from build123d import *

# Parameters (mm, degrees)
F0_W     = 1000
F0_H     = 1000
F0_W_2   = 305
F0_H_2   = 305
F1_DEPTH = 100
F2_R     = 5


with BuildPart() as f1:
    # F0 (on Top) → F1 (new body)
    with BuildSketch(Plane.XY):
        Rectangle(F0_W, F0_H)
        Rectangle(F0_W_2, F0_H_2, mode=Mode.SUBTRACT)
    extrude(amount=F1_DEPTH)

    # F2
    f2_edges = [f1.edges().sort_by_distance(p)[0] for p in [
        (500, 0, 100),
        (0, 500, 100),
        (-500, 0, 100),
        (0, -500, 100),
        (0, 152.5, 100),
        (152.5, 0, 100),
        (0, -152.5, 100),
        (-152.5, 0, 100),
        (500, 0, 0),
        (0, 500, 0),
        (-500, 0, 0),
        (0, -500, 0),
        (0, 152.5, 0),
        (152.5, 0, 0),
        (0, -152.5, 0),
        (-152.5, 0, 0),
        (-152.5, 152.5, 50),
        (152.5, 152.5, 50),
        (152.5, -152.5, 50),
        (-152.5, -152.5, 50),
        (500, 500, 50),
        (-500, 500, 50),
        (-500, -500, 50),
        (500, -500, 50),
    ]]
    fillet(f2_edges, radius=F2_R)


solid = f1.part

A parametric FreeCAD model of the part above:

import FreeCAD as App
import Part
import Sketcher

V = App.Vector
Q = App.Units.Quantity


def add_polygon(sketch, points):
    """Adds a closed chain of lines whose ends are joined by coincident constraints."""
    first, n = sketch.GeometryCount, len(points)
    for a, b in zip(points, points[1:] + points[:1]):
        sketch.addGeometry(Part.LineSegment(App.Vector(*a, 0), App.Vector(*b, 0)), False)
    for i in range(n):
        sketch.addConstraint(Sketcher.Constraint("Coincident", first + i, 2, first + (i + 1) % n, 1))

doc = App.newDocument("Part")
body = doc.addObject("PartDesign::Body", "Body")

# Sketch on XY plane
sketch1 = body.newObject("Sketcher::SketchObject", "Sketch")
sketch1.AttachmentSupport = (doc.getObject("XY_Plane"), [""])
sketch1.MapMode = "FlatFace"
add_polygon(sketch1, [(-500, 500), (-500, -500), (500, -500), (500, 500)])  # lines 0-3
add_polygon(sketch1, [(152, -152), (-152, -152), (-152, 152), (152, 152)])  # lines 4-7
sketch1.addConstraint([
    Sketcher.Constraint("Vertical", 0),
    Sketcher.Constraint("Horizontal", 1),
    Sketcher.Constraint("Vertical", 2),
    Sketcher.Constraint("Horizontal", 3),
    Sketcher.Constraint("Horizontal", 4),
    Sketcher.Constraint("Vertical", 5),
    Sketcher.Constraint("Horizontal", 6),
    Sketcher.Constraint("Vertical", 7),
    Sketcher.Constraint("Symmetric", 0, 2, 2, 2, -1, 1),
    Sketcher.Constraint("Symmetric", 4, 2, 6, 2, -1, 1),
    Sketcher.Constraint("Equal", 3, 0),
    Sketcher.Constraint("Equal", 6, 5),
    Sketcher.Constraint("DistanceX", 1, 1, 1, 2, Q("1000 mm")),
    Sketcher.Constraint("DistanceX", 4, 2, 4, 1, Q("305 mm")),
])
pad1 = body.newObject("PartDesign::Pad", "Pad")
pad1.Profile = sketch1
pad1.Length = 100
doc.recompute()

fillet = body.newObject("PartDesign::Fillet", "Fillet")
fillet.Base = (pad1, ["Edge1"])
fillet.UseAllEdges = True
fillet.Radius = 5

doc.recompute()
